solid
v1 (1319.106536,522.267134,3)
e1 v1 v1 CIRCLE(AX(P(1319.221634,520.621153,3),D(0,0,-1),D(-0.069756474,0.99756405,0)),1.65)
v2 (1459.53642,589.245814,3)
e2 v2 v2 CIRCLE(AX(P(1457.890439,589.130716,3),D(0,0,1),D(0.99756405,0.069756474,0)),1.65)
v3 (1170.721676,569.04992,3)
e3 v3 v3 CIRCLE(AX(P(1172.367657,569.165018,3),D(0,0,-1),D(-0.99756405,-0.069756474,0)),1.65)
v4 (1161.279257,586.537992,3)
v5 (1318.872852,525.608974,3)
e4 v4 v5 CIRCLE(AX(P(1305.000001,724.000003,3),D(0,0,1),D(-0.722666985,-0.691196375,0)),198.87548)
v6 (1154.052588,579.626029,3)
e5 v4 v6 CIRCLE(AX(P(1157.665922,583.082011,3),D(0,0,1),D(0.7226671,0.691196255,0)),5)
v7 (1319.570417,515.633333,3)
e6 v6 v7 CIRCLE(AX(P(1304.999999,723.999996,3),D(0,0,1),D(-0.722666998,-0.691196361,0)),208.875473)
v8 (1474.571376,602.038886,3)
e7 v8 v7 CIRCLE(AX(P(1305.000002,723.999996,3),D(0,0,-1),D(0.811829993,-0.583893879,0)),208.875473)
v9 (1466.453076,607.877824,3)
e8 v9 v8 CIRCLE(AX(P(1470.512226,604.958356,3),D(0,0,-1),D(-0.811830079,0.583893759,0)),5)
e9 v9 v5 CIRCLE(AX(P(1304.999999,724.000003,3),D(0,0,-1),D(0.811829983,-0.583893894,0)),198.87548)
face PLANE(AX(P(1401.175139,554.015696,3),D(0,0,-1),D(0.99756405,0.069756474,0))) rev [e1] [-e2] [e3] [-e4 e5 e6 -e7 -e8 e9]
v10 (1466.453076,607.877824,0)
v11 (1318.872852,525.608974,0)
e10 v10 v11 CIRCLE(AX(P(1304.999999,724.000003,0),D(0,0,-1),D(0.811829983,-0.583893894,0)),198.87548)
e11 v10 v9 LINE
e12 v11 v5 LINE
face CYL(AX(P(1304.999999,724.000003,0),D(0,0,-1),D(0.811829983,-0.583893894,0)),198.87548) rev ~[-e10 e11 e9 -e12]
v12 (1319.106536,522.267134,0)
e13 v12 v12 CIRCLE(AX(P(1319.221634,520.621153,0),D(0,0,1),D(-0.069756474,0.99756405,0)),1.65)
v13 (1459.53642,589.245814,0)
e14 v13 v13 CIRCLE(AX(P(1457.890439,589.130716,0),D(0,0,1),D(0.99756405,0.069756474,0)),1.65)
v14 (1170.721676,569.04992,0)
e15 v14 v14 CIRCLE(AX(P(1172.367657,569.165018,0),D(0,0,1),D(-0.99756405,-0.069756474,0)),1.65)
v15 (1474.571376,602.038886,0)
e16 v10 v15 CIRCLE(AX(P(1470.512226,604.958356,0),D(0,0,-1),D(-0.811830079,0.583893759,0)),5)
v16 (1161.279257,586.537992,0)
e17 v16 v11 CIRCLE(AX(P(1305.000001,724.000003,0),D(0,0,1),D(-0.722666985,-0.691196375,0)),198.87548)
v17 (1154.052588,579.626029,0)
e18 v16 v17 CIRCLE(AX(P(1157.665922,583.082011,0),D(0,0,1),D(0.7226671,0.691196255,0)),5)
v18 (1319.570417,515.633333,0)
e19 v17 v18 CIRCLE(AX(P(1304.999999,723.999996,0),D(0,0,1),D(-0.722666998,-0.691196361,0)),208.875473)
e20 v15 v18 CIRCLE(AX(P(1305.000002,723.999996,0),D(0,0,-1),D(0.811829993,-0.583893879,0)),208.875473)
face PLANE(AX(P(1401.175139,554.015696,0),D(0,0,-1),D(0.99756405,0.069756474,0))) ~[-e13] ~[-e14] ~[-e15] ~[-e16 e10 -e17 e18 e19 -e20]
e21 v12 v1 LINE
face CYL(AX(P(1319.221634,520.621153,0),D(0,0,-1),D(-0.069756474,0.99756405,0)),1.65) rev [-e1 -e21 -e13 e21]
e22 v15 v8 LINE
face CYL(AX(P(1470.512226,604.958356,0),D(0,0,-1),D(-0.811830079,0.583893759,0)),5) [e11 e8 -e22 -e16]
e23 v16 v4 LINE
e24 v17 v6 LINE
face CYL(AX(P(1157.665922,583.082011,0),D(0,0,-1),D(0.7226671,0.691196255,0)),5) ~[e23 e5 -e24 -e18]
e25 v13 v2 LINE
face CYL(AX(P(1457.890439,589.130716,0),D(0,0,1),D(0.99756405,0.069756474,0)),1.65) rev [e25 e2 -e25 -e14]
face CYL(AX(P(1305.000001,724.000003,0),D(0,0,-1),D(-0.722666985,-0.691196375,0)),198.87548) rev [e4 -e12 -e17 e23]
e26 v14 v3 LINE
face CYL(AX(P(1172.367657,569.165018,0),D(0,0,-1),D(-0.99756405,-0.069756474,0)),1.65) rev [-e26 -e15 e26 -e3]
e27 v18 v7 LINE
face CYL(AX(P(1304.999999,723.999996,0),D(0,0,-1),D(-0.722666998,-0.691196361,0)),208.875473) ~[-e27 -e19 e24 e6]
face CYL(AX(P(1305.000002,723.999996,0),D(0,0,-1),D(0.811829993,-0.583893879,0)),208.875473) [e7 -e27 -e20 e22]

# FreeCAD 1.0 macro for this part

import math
import FreeCAD as App
import Part
import Sketcher
from FreeCAD import Vector

doc = App.newDocument("Part")
params = doc.addObject("Spreadsheet::Sheet", "Params")
for row, (alias, value) in enumerate([
    ("sketch1_radius", "5 mm"),
    ("pad1_length", "3 mm"),
    ("sketch2_diameter", "3.3 mm"),
], start=1):
    params.set(f"A{row}", alias)
    params.set(f"B{row}", "=" + value)
    params.setAlias(f"B{row}", alias)

body = doc.addObject("PartDesign::Body", "Body")

sketch1 = body.newObject("Sketcher::SketchObject", "Sketch")
sketch1.AttachmentSupport = (doc.getObject("XY_Plane"), [""])
sketch1.MapMode = "FlatFace"
sketch1.addGeometry(Part.ArcOfCircle(Part.Circle(Vector(0, 0, 0), Vector(0, 0, 1), 198.9), math.radians(40), math.radians(90)), False)
sketch1.addGeometry(Part.ArcOfCircle(Part.Circle(Vector(156.8, 130.3, 0), Vector(0, 0, 1), 5), math.radians(-140), math.radians(40)), False)
sketch1.addGeometry(Part.ArcOfCircle(Part.Circle(Vector(0, 0, 0), Vector(0, 0, 1), 208.9), math.radians(40), math.radians(90)), False)
sketch1.addGeometry(Part.LineSegment(Vector(0, 208.9, 0), Vector(0, 198.9, 0)), False)
sketch1.addConstraint(Sketcher.Constraint("Tangent", 0, 1, 1, 1))
sketch1.addConstraint(Sketcher.Constraint("Tangent", 1, 2, 2, 1))
sketch1.addConstraint(Sketcher.Constraint("Coincident", 2, 2, 3, 1))
sketch1.addConstraint(Sketcher.Constraint("Coincident", 3, 2, 0, 2))
sketch1.addConstraint(Sketcher.Constraint("Vertical", 3))
sketch1.addConstraint(Sketcher.Constraint("Coincident", 0, 3, -1, 1))
sketch1.addConstraint(Sketcher.Constraint("Coincident", 2, 3, -1, 1))
sketch1.addConstraint(Sketcher.Constraint("PointOnObject", 2, 2, -2))
sketch1.addConstraint(Sketcher.Constraint("Radius", 1, 5.0))
sketch1.addConstraint(Sketcher.Constraint("Radius", 0, 198.87548))
sketch1.addConstraint(Sketcher.Constraint("DistanceY", 2, 3, 0, 1, 127.101701))
sketch1.setExpression("Constraints[8]", "Params.sketch1_radius")
pad1 = body.newObject("PartDesign::Pad", "Pad")
pad1.Profile = sketch1
pad1.setExpression("Length", "Params.pad1_length")

sketch2 = body.newObject("Sketcher::SketchObject", "Sketch001")
sketch2.AttachmentSupport = (doc.getObject("XY_Plane"), [""])
sketch2.MapMode = "FlatFace"
sketch2.addGeometry(Part.Circle(Vector(143.1, 145.2, 0), Vector(0, 0, 1), 1.6), False)
sketch2.addGeometry(Part.LineSegment(Vector(0, 205.5, 0), Vector(0, 202.2, 0)), False)
sketch2.addGeometry(Part.ArcOfCircle(Part.Circle(Vector(0, 203.9, 0), Vector(0, 0, 1), 1.6), math.radians(-90), math.radians(90)), False)
sketch2.addConstraint(Sketcher.Constraint("Coincident", 1, 1, 2, 2))
sketch2.addConstraint(Sketcher.Constraint("Coincident", 2, 1, 1, 2))
sketch2.addConstraint(Sketcher.Constraint("Vertical", 1))
sketch2.addConstraint(Sketcher.Constraint("Equal", 0, 2))
sketch2.addConstraint(Sketcher.Constraint("PointOnObject", 2, 3, -2))
sketch2.addConstraint(Sketcher.Constraint("PointOnObject", 1, 1, -2))
sketch2.addConstraint(Sketcher.Constraint("Diameter", 0, 3.3))
sketch2.addConstraint(Sketcher.Constraint("DistanceX", -1, 1, 0, 3, 143.11))
sketch2.addConstraint(Sketcher.Constraint("DistanceY", 0, 3, 2, 3, 58.66963))
sketch2.addConstraint(Sketcher.Constraint("DistanceY", -1, 1, 0, 3, 145.205847))
sketch2.setExpression("Constraints[6]", "Params.sketch2_diameter")
pocket1 = body.newObject("PartDesign::Pocket", "Pocket")
pocket1.Profile = sketch2
pocket1.Type = "ThroughAll"
pocket1.Midplane = True
doc.recompute()

mirrored = body.newObject("PartDesign::Mirrored", "Mirrored")
mirrored.Originals = [pad1, pocket1]
mirrored.MirrorPlane = (doc.getObject("YZ_Plane"), [""])
body.Tip = mirrored
body2 = doc.addObject("PartDesign::Body", "Body001")
doc.recompute()

body.Placement = App.Placement(Vector(0, 0, 0), App.Rotation(Vector(0, 0, 1), 60))
boolean = body2.newObject("PartDesign::Boolean", "Boolean")
boolean.Type = "Fuse"
boolean.addObjects([body])
body3 = doc.addObject("PartDesign::Body", "Body002")
doc.recompute()

body2.Placement = App.Placement(Vector(1305, 724, 0), App.Rotation(Vector(0, 0, 1), 124))
boolean2 = body3.newObject("PartDesign::Boolean", "Boolean001")
boolean2.Type = "Fuse"
boolean2.addObjects([body2])

doc.recompute()
